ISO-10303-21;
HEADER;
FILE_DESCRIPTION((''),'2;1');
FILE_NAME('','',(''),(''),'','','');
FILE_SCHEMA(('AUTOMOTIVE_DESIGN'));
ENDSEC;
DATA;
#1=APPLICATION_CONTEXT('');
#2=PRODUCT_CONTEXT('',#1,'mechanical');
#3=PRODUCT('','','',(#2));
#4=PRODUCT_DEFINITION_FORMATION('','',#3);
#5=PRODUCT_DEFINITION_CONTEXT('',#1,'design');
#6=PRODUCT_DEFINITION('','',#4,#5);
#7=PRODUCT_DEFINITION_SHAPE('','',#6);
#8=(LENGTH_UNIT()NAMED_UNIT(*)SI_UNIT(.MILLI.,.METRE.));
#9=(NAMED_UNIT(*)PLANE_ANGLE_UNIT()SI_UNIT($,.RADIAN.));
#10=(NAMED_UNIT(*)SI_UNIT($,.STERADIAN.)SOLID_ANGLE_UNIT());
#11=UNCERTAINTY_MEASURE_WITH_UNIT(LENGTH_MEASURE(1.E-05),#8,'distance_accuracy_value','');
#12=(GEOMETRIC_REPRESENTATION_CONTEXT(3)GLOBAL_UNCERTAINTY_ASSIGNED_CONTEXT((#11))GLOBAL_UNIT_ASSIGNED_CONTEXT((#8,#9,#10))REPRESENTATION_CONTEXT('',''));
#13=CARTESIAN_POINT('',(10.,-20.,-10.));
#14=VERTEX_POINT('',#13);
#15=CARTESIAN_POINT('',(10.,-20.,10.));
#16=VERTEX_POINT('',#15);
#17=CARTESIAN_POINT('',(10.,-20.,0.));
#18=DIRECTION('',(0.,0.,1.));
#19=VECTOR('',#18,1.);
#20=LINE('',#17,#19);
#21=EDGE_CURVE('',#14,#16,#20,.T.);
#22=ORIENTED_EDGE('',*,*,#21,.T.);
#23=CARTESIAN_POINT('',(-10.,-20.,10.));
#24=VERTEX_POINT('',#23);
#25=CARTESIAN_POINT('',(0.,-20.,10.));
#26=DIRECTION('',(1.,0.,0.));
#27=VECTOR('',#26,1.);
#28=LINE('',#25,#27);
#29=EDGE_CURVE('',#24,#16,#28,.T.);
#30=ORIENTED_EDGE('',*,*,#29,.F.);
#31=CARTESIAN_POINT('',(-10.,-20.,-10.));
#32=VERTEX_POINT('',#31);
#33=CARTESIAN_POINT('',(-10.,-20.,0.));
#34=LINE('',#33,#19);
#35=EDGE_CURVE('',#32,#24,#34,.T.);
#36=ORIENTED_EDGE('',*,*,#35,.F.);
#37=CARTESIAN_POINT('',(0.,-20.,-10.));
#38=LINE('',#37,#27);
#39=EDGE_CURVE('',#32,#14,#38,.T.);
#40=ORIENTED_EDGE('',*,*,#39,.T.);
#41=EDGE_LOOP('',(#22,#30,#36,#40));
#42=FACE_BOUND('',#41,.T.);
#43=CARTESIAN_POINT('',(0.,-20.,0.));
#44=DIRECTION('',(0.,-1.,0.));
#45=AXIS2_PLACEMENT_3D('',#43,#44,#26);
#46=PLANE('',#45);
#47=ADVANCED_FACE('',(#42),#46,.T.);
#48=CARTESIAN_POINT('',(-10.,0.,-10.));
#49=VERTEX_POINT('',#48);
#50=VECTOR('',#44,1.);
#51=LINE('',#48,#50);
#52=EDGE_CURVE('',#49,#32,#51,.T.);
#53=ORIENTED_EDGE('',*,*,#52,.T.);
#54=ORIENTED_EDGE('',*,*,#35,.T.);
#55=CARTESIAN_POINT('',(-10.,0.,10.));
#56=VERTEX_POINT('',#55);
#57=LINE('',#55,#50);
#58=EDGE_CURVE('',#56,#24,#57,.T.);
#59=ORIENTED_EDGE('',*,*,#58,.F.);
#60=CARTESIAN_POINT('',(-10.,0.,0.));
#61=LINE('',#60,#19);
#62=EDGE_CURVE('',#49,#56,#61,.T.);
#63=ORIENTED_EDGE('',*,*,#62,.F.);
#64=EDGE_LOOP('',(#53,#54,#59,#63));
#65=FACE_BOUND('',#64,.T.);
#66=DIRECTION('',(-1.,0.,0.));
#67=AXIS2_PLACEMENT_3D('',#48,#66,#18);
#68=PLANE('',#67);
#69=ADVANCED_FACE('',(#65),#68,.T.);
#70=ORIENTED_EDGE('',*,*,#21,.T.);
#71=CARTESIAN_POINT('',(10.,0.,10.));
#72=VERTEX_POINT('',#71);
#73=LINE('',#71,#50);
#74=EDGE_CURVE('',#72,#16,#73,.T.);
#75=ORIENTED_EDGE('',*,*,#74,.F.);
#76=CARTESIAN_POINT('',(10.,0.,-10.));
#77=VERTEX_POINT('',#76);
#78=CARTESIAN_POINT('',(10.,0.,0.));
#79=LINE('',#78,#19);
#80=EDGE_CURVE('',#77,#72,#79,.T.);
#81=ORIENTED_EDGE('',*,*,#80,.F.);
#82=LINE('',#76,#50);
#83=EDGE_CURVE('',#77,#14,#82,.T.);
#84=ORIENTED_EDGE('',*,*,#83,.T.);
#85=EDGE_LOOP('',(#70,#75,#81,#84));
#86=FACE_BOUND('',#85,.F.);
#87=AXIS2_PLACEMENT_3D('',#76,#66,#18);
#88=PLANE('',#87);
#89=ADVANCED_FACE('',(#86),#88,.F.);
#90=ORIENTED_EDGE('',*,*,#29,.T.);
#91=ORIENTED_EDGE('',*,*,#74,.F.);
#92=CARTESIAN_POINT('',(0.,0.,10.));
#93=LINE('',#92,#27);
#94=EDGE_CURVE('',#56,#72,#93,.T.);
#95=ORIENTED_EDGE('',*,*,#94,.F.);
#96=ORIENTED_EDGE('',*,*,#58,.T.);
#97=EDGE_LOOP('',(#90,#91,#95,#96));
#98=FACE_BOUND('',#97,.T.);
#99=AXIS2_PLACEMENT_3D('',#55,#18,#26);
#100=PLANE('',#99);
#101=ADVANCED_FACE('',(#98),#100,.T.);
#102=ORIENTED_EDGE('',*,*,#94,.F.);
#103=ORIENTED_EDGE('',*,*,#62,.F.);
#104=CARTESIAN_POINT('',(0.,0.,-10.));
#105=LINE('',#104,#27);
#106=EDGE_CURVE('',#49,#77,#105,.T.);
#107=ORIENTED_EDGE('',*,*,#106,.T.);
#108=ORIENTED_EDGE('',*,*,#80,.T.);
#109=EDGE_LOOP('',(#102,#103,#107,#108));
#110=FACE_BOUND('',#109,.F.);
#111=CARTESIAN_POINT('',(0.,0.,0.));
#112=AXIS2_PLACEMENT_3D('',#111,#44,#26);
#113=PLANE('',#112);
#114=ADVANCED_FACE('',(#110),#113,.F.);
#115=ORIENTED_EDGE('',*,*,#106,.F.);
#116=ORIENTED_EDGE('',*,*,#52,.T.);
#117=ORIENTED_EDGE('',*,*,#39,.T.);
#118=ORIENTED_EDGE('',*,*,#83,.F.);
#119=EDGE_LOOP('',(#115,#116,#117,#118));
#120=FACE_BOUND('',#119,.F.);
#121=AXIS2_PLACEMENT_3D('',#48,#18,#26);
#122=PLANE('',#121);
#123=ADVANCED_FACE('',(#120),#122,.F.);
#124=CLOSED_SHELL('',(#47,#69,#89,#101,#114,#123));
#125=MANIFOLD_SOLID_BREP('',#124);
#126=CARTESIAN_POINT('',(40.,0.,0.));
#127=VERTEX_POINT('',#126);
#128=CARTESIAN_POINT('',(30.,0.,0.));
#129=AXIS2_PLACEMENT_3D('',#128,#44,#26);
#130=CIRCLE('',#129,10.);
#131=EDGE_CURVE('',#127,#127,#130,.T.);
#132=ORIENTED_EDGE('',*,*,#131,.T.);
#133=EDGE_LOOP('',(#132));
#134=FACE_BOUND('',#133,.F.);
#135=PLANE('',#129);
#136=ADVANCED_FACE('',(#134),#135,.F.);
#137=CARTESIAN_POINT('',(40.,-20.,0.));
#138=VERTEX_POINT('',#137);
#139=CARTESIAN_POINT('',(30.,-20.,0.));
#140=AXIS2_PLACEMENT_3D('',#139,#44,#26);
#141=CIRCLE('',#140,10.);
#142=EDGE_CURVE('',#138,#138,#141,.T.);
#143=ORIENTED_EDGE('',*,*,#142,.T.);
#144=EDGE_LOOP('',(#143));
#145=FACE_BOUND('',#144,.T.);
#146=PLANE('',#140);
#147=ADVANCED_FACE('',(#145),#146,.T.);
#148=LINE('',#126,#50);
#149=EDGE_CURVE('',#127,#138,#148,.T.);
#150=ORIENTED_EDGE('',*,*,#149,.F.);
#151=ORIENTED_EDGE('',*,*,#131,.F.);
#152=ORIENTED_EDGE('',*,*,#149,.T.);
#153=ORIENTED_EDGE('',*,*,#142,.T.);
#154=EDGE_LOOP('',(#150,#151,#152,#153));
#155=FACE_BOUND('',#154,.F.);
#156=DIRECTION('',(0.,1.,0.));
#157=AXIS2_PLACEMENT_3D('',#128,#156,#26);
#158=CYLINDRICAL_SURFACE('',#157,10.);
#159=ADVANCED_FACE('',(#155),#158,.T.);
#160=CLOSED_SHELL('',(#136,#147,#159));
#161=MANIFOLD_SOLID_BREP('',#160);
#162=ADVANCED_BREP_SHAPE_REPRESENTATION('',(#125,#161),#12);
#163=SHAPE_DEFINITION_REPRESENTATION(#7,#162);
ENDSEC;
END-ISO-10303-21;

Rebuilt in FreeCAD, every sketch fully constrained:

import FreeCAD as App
import Part
import Sketcher

V = App.Vector

doc = App.newDocument("Part")
body = doc.addObject("PartDesign::Body", "Body")
body.AllowCompound = True

sketch1 = doc.addObject("Sketcher::SketchObject", "Sketch")
body.addObject(sketch1)
sketch1.AttachmentSupport = (doc.XZ_Plane, [""])
sketch1.MapMode = "FlatFace"
sketch1.addGeometry([
    Part.LineSegment(V(-10, 10, 0), V(-10, -10, 0)),
    Part.LineSegment(V(-10, -10, 0), V(10, -10, 0)),
    Part.LineSegment(V(10, -10, 0), V(10, 10, 0)),
    Part.LineSegment(V(10, 10, 0), V(-10, 10, 0)),
    Part.Circle(V(30, 0, 0), V(0, 0, 1), 10),
], False)
sketch1.addConstraint([
    Sketcher.Constraint("Coincident", 0, 2, 1, 1),
    Sketcher.Constraint("Coincident", 1, 2, 2, 1),
    Sketcher.Constraint("Coincident", 2, 2, 3, 1),
    Sketcher.Constraint("Coincident", 3, 2, 0, 1),
    Sketcher.Constraint("Vertical", 0),
    Sketcher.Constraint("Horizontal", 1),
    Sketcher.Constraint("Vertical", 2),
    Sketcher.Constraint("Horizontal", 3),
    Sketcher.Constraint("Symmetric", 0, 2, 2, 2, -1, 1),
    Sketcher.Constraint("PointOnObject", 4, 3, -1),
    Sketcher.Constraint("Equal", 3, 0),
    Sketcher.Constraint("Diameter", 4, 20.0),
    Sketcher.Constraint("DistanceX", 1, 1, 1, 2, 20.0),
    Sketcher.Constraint("DistanceX", -1, 1, 4, 3, 30.0),
])
pad1 = doc.addObject("PartDesign::Pad", "Pad")
body.addObject(pad1)
pad1.Profile = sketch1
pad1.Length = 20

doc.recompute()
